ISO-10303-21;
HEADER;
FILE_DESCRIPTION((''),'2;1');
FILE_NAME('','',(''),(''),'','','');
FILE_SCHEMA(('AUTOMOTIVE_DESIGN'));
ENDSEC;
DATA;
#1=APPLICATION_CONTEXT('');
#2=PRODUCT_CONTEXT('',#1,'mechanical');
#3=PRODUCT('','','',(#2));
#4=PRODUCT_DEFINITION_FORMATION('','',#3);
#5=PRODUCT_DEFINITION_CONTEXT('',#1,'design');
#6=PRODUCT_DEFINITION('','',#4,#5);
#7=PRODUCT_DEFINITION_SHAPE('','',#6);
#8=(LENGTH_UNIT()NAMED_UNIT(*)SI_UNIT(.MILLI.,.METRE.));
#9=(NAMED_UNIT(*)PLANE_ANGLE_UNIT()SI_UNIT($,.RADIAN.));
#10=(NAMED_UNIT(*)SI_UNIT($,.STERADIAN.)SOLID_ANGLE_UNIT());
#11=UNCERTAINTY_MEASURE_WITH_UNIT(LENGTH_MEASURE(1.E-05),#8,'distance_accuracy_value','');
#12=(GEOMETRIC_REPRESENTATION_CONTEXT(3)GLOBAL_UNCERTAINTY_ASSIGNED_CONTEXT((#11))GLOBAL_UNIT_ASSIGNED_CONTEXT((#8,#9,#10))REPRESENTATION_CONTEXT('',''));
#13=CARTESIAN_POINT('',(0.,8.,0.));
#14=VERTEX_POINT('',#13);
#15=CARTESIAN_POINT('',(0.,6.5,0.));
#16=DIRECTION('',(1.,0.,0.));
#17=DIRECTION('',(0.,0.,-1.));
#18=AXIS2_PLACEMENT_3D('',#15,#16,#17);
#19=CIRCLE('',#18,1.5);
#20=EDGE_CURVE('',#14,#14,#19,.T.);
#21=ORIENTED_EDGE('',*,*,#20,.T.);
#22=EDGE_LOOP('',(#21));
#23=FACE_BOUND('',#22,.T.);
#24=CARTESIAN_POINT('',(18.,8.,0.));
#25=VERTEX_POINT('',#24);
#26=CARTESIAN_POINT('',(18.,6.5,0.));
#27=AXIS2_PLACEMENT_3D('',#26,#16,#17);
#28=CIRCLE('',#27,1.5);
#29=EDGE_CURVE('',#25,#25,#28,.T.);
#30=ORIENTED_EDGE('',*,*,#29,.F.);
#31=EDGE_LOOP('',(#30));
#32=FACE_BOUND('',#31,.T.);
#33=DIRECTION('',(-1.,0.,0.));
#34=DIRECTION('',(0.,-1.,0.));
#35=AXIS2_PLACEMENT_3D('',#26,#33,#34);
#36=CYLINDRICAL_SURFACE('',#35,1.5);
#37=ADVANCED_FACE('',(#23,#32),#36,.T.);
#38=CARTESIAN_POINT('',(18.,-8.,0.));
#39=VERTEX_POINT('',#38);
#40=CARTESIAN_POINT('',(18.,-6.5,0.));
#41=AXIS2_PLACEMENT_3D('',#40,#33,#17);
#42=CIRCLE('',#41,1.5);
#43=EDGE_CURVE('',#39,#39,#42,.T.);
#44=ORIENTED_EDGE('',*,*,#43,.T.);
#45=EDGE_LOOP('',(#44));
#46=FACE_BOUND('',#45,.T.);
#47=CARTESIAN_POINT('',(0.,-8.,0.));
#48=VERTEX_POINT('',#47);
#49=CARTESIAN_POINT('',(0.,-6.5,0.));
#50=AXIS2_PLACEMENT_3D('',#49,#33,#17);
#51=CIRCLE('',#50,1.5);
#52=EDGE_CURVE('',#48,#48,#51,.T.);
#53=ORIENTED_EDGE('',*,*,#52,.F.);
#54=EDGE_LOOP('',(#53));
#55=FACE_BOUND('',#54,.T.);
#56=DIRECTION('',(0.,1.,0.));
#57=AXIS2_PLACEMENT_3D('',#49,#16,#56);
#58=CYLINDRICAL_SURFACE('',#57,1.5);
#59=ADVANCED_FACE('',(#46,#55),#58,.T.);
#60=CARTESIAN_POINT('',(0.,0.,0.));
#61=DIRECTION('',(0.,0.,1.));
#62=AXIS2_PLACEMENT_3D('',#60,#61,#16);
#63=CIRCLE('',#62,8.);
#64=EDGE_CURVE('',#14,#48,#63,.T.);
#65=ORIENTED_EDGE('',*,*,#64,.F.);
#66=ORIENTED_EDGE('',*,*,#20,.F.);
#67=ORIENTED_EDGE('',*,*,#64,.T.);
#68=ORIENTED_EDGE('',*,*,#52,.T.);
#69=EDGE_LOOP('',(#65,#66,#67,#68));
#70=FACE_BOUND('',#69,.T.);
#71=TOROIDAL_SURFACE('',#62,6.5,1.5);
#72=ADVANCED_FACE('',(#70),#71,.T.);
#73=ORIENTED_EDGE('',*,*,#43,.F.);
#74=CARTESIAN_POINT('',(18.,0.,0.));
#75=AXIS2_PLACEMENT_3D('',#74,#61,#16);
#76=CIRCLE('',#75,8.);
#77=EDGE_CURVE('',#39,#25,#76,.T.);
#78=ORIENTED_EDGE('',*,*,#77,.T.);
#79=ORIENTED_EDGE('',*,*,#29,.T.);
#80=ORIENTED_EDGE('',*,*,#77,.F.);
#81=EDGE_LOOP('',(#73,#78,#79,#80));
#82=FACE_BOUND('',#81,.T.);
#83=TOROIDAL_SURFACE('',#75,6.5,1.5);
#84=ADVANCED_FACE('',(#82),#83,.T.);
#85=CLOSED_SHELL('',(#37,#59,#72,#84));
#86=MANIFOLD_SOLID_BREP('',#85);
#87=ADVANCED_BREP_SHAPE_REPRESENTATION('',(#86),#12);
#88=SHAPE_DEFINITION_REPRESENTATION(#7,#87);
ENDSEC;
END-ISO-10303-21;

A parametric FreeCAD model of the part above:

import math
import FreeCAD as App
import Part
import Sketcher

V = App.Vector

doc = App.newDocument("Part")
body = doc.addObject("PartDesign::Body", "Body")

# Sketch on YZ plane
sketch1 = body.newObject("Sketcher::SketchObject", "Sketch")
sketch1.AttachmentSupport = (doc.getObject("YZ_Plane"), [""])
sketch1.MapMode = "FlatFace"
sketch1.addGeometry(Part.Circle(V(6.5, 0, 0), V(0, 0, 1), 1.5), False)
sketch1.addConstraint([
    Sketcher.Constraint("PointOnObject", 0, 3, -1),
    Sketcher.Constraint("Diameter", 0, 3.0),
    Sketcher.Constraint("DistanceX", -1, 1, 0, 3, 6.5),
])

# Sketch on XY plane
sketch2 = body.newObject("Sketcher::SketchObject", "Sketch001")
sketch2.AttachmentSupport = (doc.getObject("XY_Plane"), [""])
sketch2.MapMode = "FlatFace"
sketch2.addGeometry([
    Part.LineSegment(V(0, 6, 0), V(18, 6, 0)),
    Part.ArcOfCircle(Part.Circle(V(18, 0, 0), V(0, 0, 1), 6), math.radians(-90), math.radians(90)),
    Part.LineSegment(V(18, -6, 0), V(0, -6, 0)),
    Part.ArcOfCircle(Part.Circle(V(0, 0, 0), V(0, 0, 1), 6), math.radians(90), math.radians(270)),
], False)
sketch2.addConstraint([
    Sketcher.Constraint("Tangent", 0, 2, 1, 2),
    Sketcher.Constraint("Tangent", 1, 1, 2, 1),
    Sketcher.Constraint("Tangent", 2, 2, 3, 2),
    Sketcher.Constraint("Tangent", 3, 1, 0, 1),
    Sketcher.Constraint("Horizontal", 0),
    Sketcher.Constraint("Horizontal", 2),
    Sketcher.Constraint("Coincident", 3, 3, -1, 1),
    Sketcher.Constraint("Radius", 1, 6.5),
    Sketcher.Constraint("DistanceX", 0, 1, 0, 2, 18.0),
])
doc.recompute()

additivepipe = body.newObject("PartDesign::AdditivePipe", "AdditivePipe")
additivepipe.Profile = sketch1
additivepipe.Spine = (sketch2, ["Edge1", "Edge2", "Edge3", "Edge4"])

doc.recompute()
